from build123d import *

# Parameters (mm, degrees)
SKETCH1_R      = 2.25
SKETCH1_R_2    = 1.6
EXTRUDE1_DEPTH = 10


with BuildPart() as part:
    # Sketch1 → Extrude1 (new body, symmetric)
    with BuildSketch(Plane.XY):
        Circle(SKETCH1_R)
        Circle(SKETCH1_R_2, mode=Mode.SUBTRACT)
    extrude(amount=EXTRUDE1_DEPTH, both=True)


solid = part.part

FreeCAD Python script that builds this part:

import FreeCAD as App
import Part
import Sketcher

V = App.Vector

doc = App.newDocument("Part")
body = doc.addObject("PartDesign::Body", "Body")

sketch1 = doc.addObject("Sketcher::SketchObject", "Sketch")
body.addObject(sketch1)
sketch1.AttachmentSupport = (doc.XY_Plane, [""])
sketch1.MapMode = "FlatFace"
sketch1.addGeometry([
    Part.Circle(V(0, 0, 0), V(0, 0, 1), 2.2),
    Part.Circle(V(0, 0, 0), V(0, 0, 1), 1.6),
], False)
sketch1.addConstraint([
    Sketcher.Constraint("Coincident", 0, 3, -1, 1),
    Sketcher.Constraint("Coincident", 1, 3, -1, 1),
    Sketcher.Constraint("Diameter", 0, 4.5),
    Sketcher.Constraint("Diameter", 1, 3.2),
])
pad1 = doc.addObject("PartDesign::Pad", "Pad")
body.addObject(pad1)
pad1.Profile = sketch1
pad1.Length = 20
pad1.Midplane = True

doc.recompute()
